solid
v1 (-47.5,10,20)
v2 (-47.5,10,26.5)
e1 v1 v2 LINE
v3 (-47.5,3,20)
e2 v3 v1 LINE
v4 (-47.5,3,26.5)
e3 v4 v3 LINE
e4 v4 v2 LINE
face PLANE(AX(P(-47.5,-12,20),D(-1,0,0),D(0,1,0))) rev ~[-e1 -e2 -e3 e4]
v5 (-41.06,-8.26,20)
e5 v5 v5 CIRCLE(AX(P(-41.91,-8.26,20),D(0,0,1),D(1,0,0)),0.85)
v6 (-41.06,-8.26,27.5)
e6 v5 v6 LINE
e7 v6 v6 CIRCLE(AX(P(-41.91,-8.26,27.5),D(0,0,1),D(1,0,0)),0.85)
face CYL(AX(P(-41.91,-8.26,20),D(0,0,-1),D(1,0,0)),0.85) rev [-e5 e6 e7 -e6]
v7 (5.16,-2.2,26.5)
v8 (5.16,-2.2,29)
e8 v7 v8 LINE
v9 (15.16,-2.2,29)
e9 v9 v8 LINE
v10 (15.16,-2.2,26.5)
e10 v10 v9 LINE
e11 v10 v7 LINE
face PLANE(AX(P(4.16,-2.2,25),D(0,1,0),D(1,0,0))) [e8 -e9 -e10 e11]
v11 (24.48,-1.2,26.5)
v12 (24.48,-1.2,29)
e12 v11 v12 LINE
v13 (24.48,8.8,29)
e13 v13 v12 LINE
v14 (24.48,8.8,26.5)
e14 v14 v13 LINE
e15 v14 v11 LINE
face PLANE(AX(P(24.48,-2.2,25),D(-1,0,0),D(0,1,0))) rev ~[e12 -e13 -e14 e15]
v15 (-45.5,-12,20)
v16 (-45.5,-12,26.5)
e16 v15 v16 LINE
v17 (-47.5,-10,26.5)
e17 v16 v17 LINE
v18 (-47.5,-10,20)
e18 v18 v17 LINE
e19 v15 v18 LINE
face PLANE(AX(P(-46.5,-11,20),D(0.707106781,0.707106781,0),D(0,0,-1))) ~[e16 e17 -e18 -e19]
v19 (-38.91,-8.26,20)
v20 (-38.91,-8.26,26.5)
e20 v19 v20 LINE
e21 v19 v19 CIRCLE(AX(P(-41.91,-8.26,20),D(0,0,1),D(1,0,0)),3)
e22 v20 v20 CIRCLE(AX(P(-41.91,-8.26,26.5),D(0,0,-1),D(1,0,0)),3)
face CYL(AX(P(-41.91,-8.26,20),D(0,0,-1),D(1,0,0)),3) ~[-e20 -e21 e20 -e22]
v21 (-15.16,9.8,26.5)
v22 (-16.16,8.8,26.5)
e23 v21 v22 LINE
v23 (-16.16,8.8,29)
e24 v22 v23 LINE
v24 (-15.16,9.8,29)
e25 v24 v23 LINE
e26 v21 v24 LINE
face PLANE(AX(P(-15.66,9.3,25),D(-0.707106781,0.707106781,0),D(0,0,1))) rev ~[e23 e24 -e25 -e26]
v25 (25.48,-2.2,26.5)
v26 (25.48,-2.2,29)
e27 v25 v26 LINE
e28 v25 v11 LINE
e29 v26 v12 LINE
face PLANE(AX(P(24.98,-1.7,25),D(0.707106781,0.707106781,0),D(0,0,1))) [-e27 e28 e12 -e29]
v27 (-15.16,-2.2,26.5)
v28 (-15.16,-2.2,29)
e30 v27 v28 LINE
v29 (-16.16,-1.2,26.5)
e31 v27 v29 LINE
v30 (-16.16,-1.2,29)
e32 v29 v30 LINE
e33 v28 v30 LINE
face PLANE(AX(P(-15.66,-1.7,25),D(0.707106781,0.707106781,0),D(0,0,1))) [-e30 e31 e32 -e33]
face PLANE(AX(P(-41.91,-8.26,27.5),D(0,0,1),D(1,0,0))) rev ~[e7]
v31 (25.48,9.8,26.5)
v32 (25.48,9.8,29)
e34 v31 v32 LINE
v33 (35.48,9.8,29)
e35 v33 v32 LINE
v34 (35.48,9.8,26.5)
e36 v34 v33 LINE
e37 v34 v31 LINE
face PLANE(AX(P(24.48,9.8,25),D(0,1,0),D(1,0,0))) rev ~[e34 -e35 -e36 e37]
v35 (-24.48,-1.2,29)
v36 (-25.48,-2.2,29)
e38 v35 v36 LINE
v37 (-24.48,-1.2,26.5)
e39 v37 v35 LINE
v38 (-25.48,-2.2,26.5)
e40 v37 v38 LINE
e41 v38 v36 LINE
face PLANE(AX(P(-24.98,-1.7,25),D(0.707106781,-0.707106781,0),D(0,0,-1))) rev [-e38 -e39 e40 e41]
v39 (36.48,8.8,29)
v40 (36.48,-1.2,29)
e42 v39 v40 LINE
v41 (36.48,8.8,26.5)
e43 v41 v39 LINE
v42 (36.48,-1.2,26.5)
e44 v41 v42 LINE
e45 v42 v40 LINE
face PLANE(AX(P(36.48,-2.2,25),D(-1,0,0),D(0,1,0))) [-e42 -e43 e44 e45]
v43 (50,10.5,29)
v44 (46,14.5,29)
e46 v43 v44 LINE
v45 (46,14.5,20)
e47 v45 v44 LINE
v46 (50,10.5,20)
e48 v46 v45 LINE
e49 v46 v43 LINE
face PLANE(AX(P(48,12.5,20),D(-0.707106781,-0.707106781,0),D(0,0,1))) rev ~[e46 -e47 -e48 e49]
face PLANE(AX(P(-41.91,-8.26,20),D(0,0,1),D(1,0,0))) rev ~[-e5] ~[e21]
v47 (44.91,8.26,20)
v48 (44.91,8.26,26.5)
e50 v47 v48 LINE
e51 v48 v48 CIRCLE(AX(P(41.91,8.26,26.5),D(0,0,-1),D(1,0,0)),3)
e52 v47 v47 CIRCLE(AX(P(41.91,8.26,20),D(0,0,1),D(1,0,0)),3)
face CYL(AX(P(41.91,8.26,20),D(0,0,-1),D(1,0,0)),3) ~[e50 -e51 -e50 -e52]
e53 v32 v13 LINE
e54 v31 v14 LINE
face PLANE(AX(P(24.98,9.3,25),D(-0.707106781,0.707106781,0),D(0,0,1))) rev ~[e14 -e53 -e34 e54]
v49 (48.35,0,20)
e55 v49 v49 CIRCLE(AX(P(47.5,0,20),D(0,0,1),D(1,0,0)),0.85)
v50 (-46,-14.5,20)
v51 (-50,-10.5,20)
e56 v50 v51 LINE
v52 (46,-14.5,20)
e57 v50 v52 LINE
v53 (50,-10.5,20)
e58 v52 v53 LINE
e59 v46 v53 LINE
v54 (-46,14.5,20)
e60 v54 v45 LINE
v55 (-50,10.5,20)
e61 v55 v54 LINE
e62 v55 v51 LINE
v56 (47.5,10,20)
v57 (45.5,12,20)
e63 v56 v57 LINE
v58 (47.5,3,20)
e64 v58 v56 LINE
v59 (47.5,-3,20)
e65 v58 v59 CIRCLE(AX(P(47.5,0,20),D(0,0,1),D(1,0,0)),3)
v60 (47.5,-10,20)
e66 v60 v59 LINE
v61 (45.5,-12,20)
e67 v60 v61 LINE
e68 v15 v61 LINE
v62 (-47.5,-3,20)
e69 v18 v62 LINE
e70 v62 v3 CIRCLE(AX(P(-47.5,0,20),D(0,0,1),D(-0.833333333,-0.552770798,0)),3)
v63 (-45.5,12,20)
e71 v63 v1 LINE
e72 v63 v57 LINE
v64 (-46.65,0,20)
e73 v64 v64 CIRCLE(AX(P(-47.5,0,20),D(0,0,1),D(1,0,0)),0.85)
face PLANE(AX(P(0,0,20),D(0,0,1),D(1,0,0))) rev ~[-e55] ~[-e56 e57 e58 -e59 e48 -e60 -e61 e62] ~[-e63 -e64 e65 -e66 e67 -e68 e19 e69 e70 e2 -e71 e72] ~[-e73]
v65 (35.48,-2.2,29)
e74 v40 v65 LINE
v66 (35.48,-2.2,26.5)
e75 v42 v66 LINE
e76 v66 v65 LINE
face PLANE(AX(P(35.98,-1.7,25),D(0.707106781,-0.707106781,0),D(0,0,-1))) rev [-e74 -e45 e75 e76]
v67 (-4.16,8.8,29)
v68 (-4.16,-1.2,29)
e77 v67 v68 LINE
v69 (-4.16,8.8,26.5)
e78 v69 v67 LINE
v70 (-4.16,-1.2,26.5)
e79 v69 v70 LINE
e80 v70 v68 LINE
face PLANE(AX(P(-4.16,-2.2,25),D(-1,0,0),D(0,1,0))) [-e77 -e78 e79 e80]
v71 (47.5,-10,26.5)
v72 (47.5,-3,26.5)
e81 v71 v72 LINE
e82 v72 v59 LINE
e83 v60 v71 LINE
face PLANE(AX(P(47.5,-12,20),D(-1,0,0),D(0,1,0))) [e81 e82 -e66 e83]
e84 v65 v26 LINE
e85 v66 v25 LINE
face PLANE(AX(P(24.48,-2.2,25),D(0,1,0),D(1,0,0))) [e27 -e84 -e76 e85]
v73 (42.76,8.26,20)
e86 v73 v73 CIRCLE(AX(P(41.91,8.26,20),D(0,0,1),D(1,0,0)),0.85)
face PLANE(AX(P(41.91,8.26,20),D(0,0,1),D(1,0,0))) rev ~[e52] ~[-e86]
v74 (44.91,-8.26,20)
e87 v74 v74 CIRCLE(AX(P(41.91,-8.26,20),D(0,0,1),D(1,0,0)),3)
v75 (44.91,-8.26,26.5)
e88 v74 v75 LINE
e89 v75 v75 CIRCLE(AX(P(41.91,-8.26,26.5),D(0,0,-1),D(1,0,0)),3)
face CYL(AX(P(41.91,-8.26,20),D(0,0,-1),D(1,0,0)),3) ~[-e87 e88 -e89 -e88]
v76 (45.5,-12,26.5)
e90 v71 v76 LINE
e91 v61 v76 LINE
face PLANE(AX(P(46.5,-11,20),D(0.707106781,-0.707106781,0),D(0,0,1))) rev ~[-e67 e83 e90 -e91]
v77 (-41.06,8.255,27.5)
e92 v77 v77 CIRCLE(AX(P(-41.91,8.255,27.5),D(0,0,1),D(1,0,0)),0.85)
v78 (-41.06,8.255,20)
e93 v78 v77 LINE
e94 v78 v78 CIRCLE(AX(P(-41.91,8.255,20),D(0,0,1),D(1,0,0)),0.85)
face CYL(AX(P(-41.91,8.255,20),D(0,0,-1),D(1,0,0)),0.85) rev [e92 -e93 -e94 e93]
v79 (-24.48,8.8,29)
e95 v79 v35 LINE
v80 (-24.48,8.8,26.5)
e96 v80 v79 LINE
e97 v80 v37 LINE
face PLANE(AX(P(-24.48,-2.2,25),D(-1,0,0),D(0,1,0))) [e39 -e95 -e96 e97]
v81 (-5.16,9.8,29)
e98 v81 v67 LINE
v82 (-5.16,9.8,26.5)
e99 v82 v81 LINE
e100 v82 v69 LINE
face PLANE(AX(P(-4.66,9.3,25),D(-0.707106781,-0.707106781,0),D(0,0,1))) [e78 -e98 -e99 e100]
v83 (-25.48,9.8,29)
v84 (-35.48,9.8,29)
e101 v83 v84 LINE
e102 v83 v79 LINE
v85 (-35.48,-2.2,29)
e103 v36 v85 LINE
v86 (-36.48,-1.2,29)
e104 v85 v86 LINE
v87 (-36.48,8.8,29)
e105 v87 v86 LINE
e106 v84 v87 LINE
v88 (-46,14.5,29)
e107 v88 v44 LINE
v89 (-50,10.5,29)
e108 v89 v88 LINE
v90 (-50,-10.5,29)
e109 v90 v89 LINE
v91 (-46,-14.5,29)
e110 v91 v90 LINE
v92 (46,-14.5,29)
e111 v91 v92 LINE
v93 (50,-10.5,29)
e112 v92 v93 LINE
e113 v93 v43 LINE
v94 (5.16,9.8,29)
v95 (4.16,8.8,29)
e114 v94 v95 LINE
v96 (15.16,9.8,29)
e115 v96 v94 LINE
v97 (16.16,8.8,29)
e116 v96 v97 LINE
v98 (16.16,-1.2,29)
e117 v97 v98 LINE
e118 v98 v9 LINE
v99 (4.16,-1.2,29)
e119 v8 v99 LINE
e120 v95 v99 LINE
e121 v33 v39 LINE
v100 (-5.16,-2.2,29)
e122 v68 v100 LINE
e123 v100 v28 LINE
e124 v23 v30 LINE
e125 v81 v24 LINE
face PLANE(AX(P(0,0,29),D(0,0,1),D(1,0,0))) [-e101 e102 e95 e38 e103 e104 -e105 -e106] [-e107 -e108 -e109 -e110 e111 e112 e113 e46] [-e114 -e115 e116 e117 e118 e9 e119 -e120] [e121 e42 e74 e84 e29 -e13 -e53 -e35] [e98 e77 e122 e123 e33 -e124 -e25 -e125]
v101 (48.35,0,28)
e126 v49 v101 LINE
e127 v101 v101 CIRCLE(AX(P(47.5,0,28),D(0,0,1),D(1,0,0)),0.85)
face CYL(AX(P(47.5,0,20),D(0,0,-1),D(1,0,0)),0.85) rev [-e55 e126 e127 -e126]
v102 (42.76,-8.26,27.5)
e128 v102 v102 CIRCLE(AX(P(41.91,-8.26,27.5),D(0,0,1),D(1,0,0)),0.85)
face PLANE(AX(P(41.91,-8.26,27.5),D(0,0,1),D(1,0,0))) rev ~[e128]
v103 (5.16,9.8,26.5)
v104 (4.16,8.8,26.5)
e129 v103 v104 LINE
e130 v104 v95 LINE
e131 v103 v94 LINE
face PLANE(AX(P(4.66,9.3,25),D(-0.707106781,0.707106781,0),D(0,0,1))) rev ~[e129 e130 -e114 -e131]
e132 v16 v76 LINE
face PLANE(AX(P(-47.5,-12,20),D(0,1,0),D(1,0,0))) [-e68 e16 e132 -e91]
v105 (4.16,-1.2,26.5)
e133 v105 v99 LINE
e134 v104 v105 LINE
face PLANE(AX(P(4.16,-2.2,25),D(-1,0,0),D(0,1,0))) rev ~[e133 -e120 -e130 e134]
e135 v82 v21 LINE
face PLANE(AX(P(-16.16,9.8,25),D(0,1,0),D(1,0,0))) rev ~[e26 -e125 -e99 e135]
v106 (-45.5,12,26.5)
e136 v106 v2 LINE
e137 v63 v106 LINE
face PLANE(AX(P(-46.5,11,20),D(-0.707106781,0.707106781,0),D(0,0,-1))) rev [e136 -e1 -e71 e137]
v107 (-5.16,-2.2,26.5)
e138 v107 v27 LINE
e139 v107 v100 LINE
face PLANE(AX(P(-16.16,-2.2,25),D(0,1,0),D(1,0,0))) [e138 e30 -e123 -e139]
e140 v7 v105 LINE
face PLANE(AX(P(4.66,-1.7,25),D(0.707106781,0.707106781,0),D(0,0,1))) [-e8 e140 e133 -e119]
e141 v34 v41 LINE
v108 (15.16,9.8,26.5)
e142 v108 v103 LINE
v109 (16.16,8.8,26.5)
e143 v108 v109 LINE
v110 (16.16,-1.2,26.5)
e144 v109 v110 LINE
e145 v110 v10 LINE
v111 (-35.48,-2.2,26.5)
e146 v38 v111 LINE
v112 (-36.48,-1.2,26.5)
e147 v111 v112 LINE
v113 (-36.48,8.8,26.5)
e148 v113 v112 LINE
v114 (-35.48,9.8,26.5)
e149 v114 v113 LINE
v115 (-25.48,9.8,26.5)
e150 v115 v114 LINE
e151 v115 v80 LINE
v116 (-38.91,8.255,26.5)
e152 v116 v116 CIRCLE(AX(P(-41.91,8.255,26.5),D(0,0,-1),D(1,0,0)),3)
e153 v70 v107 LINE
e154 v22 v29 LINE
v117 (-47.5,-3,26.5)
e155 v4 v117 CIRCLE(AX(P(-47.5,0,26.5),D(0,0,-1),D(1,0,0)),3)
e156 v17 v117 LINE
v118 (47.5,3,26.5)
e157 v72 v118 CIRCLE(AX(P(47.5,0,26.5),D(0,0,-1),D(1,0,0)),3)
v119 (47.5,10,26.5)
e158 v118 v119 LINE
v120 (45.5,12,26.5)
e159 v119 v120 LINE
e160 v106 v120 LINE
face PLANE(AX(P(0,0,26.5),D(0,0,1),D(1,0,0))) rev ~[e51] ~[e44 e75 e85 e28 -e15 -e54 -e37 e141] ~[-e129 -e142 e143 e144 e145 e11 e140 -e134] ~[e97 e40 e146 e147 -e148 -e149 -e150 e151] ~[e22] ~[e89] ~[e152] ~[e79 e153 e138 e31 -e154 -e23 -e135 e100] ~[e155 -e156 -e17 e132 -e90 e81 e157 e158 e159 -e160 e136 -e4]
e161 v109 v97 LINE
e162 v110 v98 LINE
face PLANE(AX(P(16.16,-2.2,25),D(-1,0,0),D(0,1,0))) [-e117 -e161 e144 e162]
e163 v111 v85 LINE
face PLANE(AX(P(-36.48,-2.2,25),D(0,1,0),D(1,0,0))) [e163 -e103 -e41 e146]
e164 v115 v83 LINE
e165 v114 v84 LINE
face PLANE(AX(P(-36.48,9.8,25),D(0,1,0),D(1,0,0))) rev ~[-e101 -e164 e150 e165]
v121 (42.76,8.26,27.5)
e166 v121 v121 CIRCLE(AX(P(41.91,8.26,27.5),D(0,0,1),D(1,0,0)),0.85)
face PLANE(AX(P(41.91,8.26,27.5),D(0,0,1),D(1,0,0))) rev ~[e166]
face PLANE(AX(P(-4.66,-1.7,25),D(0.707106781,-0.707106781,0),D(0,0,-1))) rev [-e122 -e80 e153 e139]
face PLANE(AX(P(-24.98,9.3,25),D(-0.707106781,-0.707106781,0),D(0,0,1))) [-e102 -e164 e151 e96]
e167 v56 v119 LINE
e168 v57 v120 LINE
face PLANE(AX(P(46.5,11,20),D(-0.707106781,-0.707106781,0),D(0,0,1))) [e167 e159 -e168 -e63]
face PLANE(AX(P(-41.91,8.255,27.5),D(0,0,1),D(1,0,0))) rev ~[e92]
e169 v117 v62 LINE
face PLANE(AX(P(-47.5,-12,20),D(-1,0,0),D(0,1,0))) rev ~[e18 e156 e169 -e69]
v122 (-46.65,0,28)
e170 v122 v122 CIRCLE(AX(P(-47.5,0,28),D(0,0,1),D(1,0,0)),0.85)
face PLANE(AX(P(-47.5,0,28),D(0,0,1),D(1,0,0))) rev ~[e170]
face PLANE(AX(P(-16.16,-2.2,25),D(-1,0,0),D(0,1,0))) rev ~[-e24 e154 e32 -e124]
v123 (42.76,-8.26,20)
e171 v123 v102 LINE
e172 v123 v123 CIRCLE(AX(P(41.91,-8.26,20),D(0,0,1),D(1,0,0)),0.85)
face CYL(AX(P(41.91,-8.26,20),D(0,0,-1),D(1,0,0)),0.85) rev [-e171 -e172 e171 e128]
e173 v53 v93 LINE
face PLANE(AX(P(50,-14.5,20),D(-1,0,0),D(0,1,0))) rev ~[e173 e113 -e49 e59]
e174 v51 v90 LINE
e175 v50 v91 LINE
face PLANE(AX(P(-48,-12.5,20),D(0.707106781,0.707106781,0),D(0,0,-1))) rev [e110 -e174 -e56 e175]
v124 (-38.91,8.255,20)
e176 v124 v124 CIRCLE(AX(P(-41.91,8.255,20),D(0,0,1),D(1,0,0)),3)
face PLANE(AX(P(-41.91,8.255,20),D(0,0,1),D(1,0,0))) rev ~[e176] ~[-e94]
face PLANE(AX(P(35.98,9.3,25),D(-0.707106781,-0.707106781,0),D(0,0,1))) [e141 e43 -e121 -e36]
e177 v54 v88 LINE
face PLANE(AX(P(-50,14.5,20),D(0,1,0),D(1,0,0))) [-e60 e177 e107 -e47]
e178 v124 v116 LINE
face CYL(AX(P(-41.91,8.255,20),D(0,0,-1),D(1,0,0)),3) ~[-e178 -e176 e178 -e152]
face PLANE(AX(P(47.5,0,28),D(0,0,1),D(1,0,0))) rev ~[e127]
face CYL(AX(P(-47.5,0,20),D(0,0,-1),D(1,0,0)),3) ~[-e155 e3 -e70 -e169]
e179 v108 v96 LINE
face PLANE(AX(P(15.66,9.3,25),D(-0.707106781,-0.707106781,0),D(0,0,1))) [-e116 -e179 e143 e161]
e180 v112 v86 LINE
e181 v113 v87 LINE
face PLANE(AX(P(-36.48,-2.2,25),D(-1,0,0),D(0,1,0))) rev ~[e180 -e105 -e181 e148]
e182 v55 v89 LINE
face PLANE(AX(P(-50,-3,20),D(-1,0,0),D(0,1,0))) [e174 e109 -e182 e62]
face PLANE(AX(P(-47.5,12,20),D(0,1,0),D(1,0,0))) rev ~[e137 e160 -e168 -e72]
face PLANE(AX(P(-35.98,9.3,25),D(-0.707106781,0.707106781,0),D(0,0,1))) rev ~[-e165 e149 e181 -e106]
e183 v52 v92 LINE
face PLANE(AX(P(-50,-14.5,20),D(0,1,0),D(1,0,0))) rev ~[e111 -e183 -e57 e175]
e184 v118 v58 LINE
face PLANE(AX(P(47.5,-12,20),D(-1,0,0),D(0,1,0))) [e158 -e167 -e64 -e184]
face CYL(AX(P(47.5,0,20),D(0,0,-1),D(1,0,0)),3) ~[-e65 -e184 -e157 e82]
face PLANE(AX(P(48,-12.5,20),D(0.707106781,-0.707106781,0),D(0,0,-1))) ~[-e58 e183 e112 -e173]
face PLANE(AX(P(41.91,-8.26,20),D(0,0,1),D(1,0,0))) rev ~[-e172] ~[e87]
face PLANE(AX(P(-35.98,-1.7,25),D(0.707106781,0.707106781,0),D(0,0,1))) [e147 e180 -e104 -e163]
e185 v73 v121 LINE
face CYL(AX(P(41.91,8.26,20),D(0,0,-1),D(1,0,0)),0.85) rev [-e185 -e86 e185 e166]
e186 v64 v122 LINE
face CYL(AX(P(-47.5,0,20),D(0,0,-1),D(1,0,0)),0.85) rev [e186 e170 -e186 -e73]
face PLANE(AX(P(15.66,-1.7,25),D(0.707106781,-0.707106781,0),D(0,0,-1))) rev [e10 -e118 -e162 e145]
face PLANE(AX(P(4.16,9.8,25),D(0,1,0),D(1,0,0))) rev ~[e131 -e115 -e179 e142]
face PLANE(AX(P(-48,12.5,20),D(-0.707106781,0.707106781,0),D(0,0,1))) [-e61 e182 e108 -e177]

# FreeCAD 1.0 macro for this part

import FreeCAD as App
import Part
import Sketcher


def edges_at(feature, points):
    """Names of the edges that pass closest to the given points."""
    edges = feature.Shape.Edges
    near = lambda p: min(range(len(edges)), key=lambda i: edges[i].distToShape(Part.Vertex(*p))[0])
    return sorted({f"Edge{near(p) + 1}" for p in points})

doc = App.newDocument("Part")
body = doc.addObject("PartDesign::Body", "Body")

# Sketch on XY plane
sketch1 = doc.addObject("Sketcher::SketchObject", "Sketch")
body.addObject(sketch1)
sketch1.AttachmentSupport = (doc.XY_Plane, [""])
sketch1.MapMode = "FlatFace"
sketch1.AttachmentOffset = App.Placement(App.Vector(0, 0, 20), App.Rotation())
sketch1.addGeometry(Part.Circle(App.Vector(-47.5, 0, 0), App.Vector(0, 0, 1), 0.85), False)
sketch1.addConstraint(Sketcher.Constraint("PointOnObject", 0, 3, -1))
sketch1.addConstraint(Sketcher.Constraint("Diameter", 0, 1.7))
sketch1.addConstraint(Sketcher.Constraint("DistanceX", 0, 3, -1, 1, 47.5))
pad1 = doc.addObject("PartDesign::Pad", "Pad")
body.addObject(pad1)
pad1.Profile = sketch1
pad1.Length = 8
body2 = doc.addObject("PartDesign::Body", "Body001")
body2.AllowCompound = True

# Sketch on XY plane
sketch2 = doc.addObject("Sketcher::SketchObject", "Sketch001")
body2.addObject(sketch2)
sketch2.AttachmentSupport = (doc.getObject("XY_Plane001"), [""])
sketch2.MapMode = "FlatFace"
sketch2.AttachmentOffset = App.Placement(App.Vector(0, 0, 20), App.Rotation())
sketch2.addGeometry(Part.Circle(App.Vector(47.5, 0, 0), App.Vector(0, 0, 1), 0.85), False)
sketch2.addConstraint(Sketcher.Constraint("PointOnObject", 0, 3, -1))
sketch2.addConstraint(Sketcher.Constraint("Diameter", 0, 1.7))
sketch2.addConstraint(Sketcher.Constraint("DistanceX", -1, 1, 0, 3, 47.5))
pad2 = doc.addObject("PartDesign::Pad", "Pad001")
body2.addObject(pad2)
pad2.Profile = sketch2
pad2.Length = 8
doc.recompute()

boolean = doc.addObject("PartDesign::Boolean", "Boolean")
body2.addObject(boolean)
boolean.Type = "Fuse"
boolean.addObjects([body])
body3 = doc.addObject("PartDesign::Body", "Body002")

# Sketch on XY plane
sketch3 = doc.addObject("Sketcher::SketchObject", "Sketch002")
body3.addObject(sketch3)
sketch3.AttachmentSupport = (doc.getObject("XY_Plane002"), [""])
sketch3.MapMode = "FlatFace"
sketch3.AttachmentOffset = App.Placement(App.Vector(0, 0, 20), App.Rotation())
sketch3.addGeometry(Part.LineSegment(App.Vector(-60, 7, 0), App.Vector(-60, -3, 0)), False)
sketch3.addGeometry(Part.LineSegment(App.Vector(-60, -3, 0), App.Vector(-50, -3, 0)), False)
sketch3.addGeometry(Part.LineSegment(App.Vector(-50, -3, 0), App.Vector(-50, 7, 0)), False)
sketch3.addGeometry(Part.LineSegment(App.Vector(-50, 7, 0), App.Vector(-60, 7, 0)), False)
sketch3.addConstraint(Sketcher.Constraint("Coincident", 0, 2, 1, 1))
sketch3.addConstraint(Sketcher.Constraint("Coincident", 1, 2, 2, 1))
sketch3.addConstraint(Sketcher.Constraint("Coincident", 2, 2, 3, 1))
sketch3.addConstraint(Sketcher.Constraint("Coincident", 3, 2, 0, 1))
sketch3.addConstraint(Sketcher.Constraint("Vertical", 0))
sketch3.addConstraint(Sketcher.Constraint("Horizontal", 1))
sketch3.addConstraint(Sketcher.Constraint("Vertical", 2))
sketch3.addConstraint(Sketcher.Constraint("Horizontal", 3))
sketch3.addConstraint(Sketcher.Constraint("Equal", 3, 0))
sketch3.addConstraint(Sketcher.Constraint("DistanceX", 1, 1, 1, 2, 10.0))
sketch3.addConstraint(Sketcher.Constraint("DistanceX", 0, 2, -1, 1, 60.0))
sketch3.addConstraint(Sketcher.Constraint("DistanceY", 0, 2, -1, 1, 3.0))
pad3 = doc.addObject("PartDesign::Pad", "Pad002")
body3.addObject(pad3)
pad3.Profile = sketch3
pad3.Length = 10
body4 = doc.addObject("PartDesign::Body", "Body003")

# Sketch on XY plane
sketch4 = doc.addObject("Sketcher::SketchObject", "Sketch003")
body4.addObject(sketch4)
sketch4.AttachmentSupport = (doc.getObject("XY_Plane003"), [""])
sketch4.MapMode = "FlatFace"
sketch4.AttachmentOffset = App.Placement(App.Vector(0, 0, 20), App.Rotation())
sketch4.addGeometry(Part.Circle(App.Vector(-47.5, 0, 0), App.Vector(0, 0, 1), 3), False)
sketch4.addConstraint(Sketcher.Constraint("PointOnObject", 0, 3, -1))
sketch4.addConstraint(Sketcher.Constraint("Diameter", 0, 6.0))
sketch4.addConstraint(Sketcher.Constraint("DistanceX", 0, 3, -1, 1, 47.5))
pad4 = doc.addObject("PartDesign::Pad", "Pad003")
body4.addObject(pad4)
pad4.Profile = sketch4
pad4.Length = 8
doc.recompute()

boolean2 = doc.addObject("PartDesign::Boolean", "Boolean001")
body4.addObject(boolean2)
boolean2.Type = "Cut"
boolean2.addObjects([body3])
body5 = doc.addObject("PartDesign::Body", "Body004")

# Sketch on XY plane
sketch5 = doc.addObject("Sketcher::SketchObject", "Sketch004")
body5.addObject(sketch5)
sketch5.AttachmentSupport = (doc.getObject("XY_Plane004"), [""])
sketch5.MapMode = "FlatFace"
sketch5.AttachmentOffset = App.Placement(App.Vector(0, 0, 20), App.Rotation())
sketch5.addGeometry(Part.LineSegment(App.Vector(50, 7, 0), App.Vector(50, -3, 0)), False)
sketch5.addGeometry(Part.LineSegment(App.Vector(50, -3, 0), App.Vector(60, -3, 0)), False)
sketch5.addGeometry(Part.LineSegment(App.Vector(60, -3, 0), App.Vector(60, 7, 0)), False)
sketch5.addGeometry(Part.LineSegment(App.Vector(60, 7, 0), App.Vector(50, 7, 0)), False)
sketch5.addConstraint(Sketcher.Constraint("Coincident", 0, 2, 1, 1))
sketch5.addConstraint(Sketcher.Constraint("Coincident", 1, 2, 2, 1))
sketch5.addConstraint(Sketcher.Constraint("Coincident", 2, 2, 3, 1))
sketch5.addConstraint(Sketcher.Constraint("Coincident", 3, 2, 0, 1))
sketch5.addConstraint(Sketcher.Constraint("Vertical", 0))
sketch5.addConstraint(Sketcher.Constraint("Horizontal", 1))
sketch5.addConstraint(Sketcher.Constraint("Vertical", 2))
sketch5.addConstraint(Sketcher.Constraint("Horizontal", 3))
sketch5.addConstraint(Sketcher.Constraint("Equal", 3, 0))
sketch5.addConstraint(Sketcher.Constraint("DistanceX", 1, 1, 1, 2, 10.0))
sketch5.addConstraint(Sketcher.Constraint("DistanceX", -1, 1, 0, 2, 50.0))
sketch5.addConstraint(Sketcher.Constraint("DistanceY", 0, 2, -1, 1, 3.0))
pad5 = doc.addObject("PartDesign::Pad", "Pad004")
body5.addObject(pad5)
pad5.Profile = sketch5
pad5.Length = 10
body6 = doc.addObject("PartDesign::Body", "Body005")
body6.AllowCompound = True

# Sketch on XY plane
sketch6 = doc.addObject("Sketcher::SketchObject", "Sketch005")
body6.addObject(sketch6)
sketch6.AttachmentSupport = (doc.getObject("XY_Plane005"), [""])
sketch6.MapMode = "FlatFace"
sketch6.AttachmentOffset = App.Placement(App.Vector(0, 0, 20), App.Rotation())
sketch6.addGeometry(Part.Circle(App.Vector(47.5, 0, 0), App.Vector(0, 0, 1), 3), False)
sketch6.addConstraint(Sketcher.Constraint("PointOnObject", 0, 3, -1))
sketch6.addConstraint(Sketcher.Constraint("Diameter", 0, 6.0))
sketch6.addConstraint(Sketcher.Constraint("DistanceX", -1, 1, 0, 3, 47.5))
pad6 = doc.addObject("PartDesign::Pad", "Pad005")
body6.addObject(pad6)
pad6.Profile = sketch6
pad6.Length = 8
doc.recompute()

boolean3 = doc.addObject("PartDesign::Boolean", "Boolean002")
body6.addObject(boolean3)
boolean3.Type = "Cut"
boolean3.addObjects([body5])
doc.recompute()

boolean4 = doc.addObject("PartDesign::Boolean", "Boolean003")
body6.addObject(boolean4)
boolean4.Type = "Fuse"
boolean4.addObjects([body4])
body7 = doc.addObject("PartDesign::Body", "Body006")

# Sketch on XY plane
sketch7 = doc.addObject("Sketcher::SketchObject", "Sketch006")
body7.addObject(sketch7)
sketch7.AttachmentSupport = (doc.getObject("XY_Plane006"), [""])
sketch7.MapMode = "FlatFace"
sketch7.addGeometry(Part.LineSegment(App.Vector(24.48, 6, 0), App.Vector(24.48, -6, 0)), False)
sketch7.addGeometry(Part.LineSegment(App.Vector(24.48, -6, 0), App.Vector(36.48, -6, 0)), False)
sketch7.addGeometry(Part.LineSegment(App.Vector(36.48, -6, 0), App.Vector(36.48, 6, 0)), False)
sketch7.addGeometry(Part.LineSegment(App.Vector(36.48, 6, 0), App.Vector(24.48, 6, 0)), False)
sketch7.addConstraint(Sketcher.Constraint("Coincident", 0, 2, 1, 1))
sketch7.addConstraint(Sketcher.Constraint("Coincident", 1, 2, 2, 1))
sketch7.addConstraint(Sketcher.Constraint("Coincident", 2, 2, 3, 1))
sketch7.addConstraint(Sketcher.Constraint("Coincident", 3, 2, 0, 1))
sketch7.addConstraint(Sketcher.Constraint("Vertical", 0))
sketch7.addConstraint(Sketcher.Constraint("Horizontal", 1))
sketch7.addConstraint(Sketcher.Constraint("Vertical", 2))
sketch7.addConstraint(Sketcher.Constraint("Horizontal", 3))
sketch7.addConstraint(Sketcher.Constraint("Equal", 3, 0))
sketch7.addConstraint(Sketcher.Constraint("DistanceX", 1, 1, 1, 2, 12.0))
sketch7.addConstraint(Sketcher.Constraint("DistanceY", 0, 2, -1, 1, 6.0))
sketch7.addConstraint(Sketcher.Constraint("DistanceX", -1, 1, 0, 2, 24.48))
pad7 = doc.addObject("PartDesign::Pad", "Pad006")
body7.addObject(pad7)
pad7.Profile = sketch7
pad7.Length = 10
body8 = doc.addObject("PartDesign::Body", "Body007")

# Sketch on XY plane
sketch8 = doc.addObject("Sketcher::SketchObject", "Sketch007")
body8.addObject(sketch8)
sketch8.AttachmentSupport = (doc.getObject("XY_Plane007"), [""])
sketch8.MapMode = "FlatFace"
sketch8.addGeometry(Part.LineSegment(App.Vector(4.16, 6, 0), App.Vector(4.16, -6, 0)), False)
sketch8.addGeometry(Part.LineSegment(App.Vector(4.16, -6, 0), App.Vector(16.16, -6, 0)), False)
sketch8.addGeometry(Part.LineSegment(App.Vector(16.16, -6, 0), App.Vector(16.16, 6, 0)), False)
sketch8.addGeometry(Part.LineSegment(App.Vector(16.16, 6, 0), App.Vector(4.16, 6, 0)), False)
sketch8.addConstraint(Sketcher.Constraint("Coincident", 0, 2, 1, 1))
sketch8.addConstraint(Sketcher.Constraint("Coincident", 1, 2, 2, 1))
sketch8.addConstraint(Sketcher.Constraint("Coincident", 2, 2, 3, 1))
sketch8.addConstraint(Sketcher.Constraint("Coincident", 3, 2, 0, 1))
sketch8.addConstraint(Sketcher.Constraint("Vertical", 0))
sketch8.addConstraint(Sketcher.Constraint("Horizontal", 1))
sketch8.addConstraint(Sketcher.Constraint("Vertical", 2))
sketch8.addConstraint(Sketcher.Constraint("Horizontal", 3))
sketch8.addConstraint(Sketcher.Constraint("Equal", 3, 0))
sketch8.addConstraint(Sketcher.Constraint("DistanceX", 1, 1, 1, 2, 12.0))
sketch8.addConstraint(Sketcher.Constraint("DistanceY", 0, 2, -1, 1, 6.0))
sketch8.addConstraint(Sketcher.Constraint("DistanceX", -1, 1, 0, 2, 4.16))
pad8 = doc.addObject("PartDesign::Pad", "Pad007")
body8.addObject(pad8)
pad8.Profile = sketch8
pad8.Length = 10
body9 = doc.addObject("PartDesign::Body", "Body008")

# Sketch on XY plane
sketch9 = doc.addObject("Sketcher::SketchObject", "Sketch008")
body9.addObject(sketch9)
sketch9.AttachmentSupport = (doc.getObject("XY_Plane008"), [""])
sketch9.MapMode = "FlatFace"
sketch9.addGeometry(Part.LineSegment(App.Vector(-16.16, 6, 0), App.Vector(-16.16, -6, 0)), False)
sketch9.addGeometry(Part.LineSegment(App.Vector(-16.16, -6, 0), App.Vector(-4.16, -6, 0)), False)
sketch9.addGeometry(Part.LineSegment(App.Vector(-4.16, -6, 0), App.Vector(-4.16, 6, 0)), False)
sketch9.addGeometry(Part.LineSegment(App.Vector(-4.16, 6, 0), App.Vector(-16.16, 6, 0)), False)
sketch9.addConstraint(Sketcher.Constraint("Coincident", 0, 2, 1, 1))
sketch9.addConstraint(Sketcher.Constraint("Coincident", 1, 2, 2, 1))
sketch9.addConstraint(Sketcher.Constraint("Coincident", 2, 2, 3, 1))
sketch9.addConstraint(Sketcher.Constraint("Coincident", 3, 2, 0, 1))
sketch9.addConstraint(Sketcher.Constraint("Vertical", 0))
sketch9.addConstraint(Sketcher.Constraint("Horizontal", 1))
sketch9.addConstraint(Sketcher.Constraint("Vertical", 2))
sketch9.addConstraint(Sketcher.Constraint("Horizontal", 3))
sketch9.addConstraint(Sketcher.Constraint("Equal", 3, 0))
sketch9.addConstraint(Sketcher.Constraint("DistanceX", 1, 1, 1, 2, 12.0))
sketch9.addConstraint(Sketcher.Constraint("DistanceY", 0, 2, -1, 1, 6.0))
sketch9.addConstraint(Sketcher.Constraint("DistanceX", 0, 2, -1, 1, 16.16))
pad9 = doc.addObject("PartDesign::Pad", "Pad008")
body9.addObject(pad9)
pad9.Profile = sketch9
pad9.Length = 10
body10 = doc.addObject("PartDesign::Body", "Body009")
body10.AllowCompound = True

# Sketch on XY plane
sketch10 = doc.addObject("Sketcher::SketchObject", "Sketch009")
body10.addObject(sketch10)
sketch10.AttachmentSupport = (doc.getObject("XY_Plane009"), [""])
sketch10.MapMode = "FlatFace"
sketch10.addGeometry(Part.LineSegment(App.Vector(-36.48, 6, 0), App.Vector(-36.48, -6, 0)), False)
sketch10.addGeometry(Part.LineSegment(App.Vector(-36.48, -6, 0), App.Vector(-24.48, -6, 0)), False)
sketch10.addGeometry(Part.LineSegment(App.Vector(-24.48, -6, 0), App.Vector(-24.48, 6, 0)), False)
sketch10.addGeometry(Part.LineSegment(App.Vector(-24.48, 6, 0), App.Vector(-36.48, 6, 0)), False)
sketch10.addConstraint(Sketcher.Constraint("Coincident", 0, 2, 1, 1))
sketch10.addConstraint(Sketcher.Constraint("Coincident", 1, 2, 2, 1))
sketch10.addConstraint(Sketcher.Constraint("Coincident", 2, 2, 3, 1))
sketch10.addConstraint(Sketcher.Constraint("Coincident", 3, 2, 0, 1))
sketch10.addConstraint(Sketcher.Constraint("Vertical", 0))
sketch10.addConstraint(Sketcher.Constraint("Horizontal", 1))
sketch10.addConstraint(Sketcher.Constraint("Vertical", 2))
sketch10.addConstraint(Sketcher.Constraint("Horizontal", 3))
sketch10.addConstraint(Sketcher.Constraint("Equal", 3, 0))
sketch10.addConstraint(Sketcher.Constraint("DistanceX", 1, 1, 1, 2, 12.0))
sketch10.addConstraint(Sketcher.Constraint("DistanceY", 0, 2, -1, 1, 6.0))
sketch10.addConstraint(Sketcher.Constraint("DistanceX", 0, 2, -1, 1, 36.48))
pad10 = doc.addObject("PartDesign::Pad", "Pad009")
body10.addObject(pad10)
pad10.Profile = sketch10
pad10.Length = 10
doc.recompute()

boolean5 = doc.addObject("PartDesign::Boolean", "Boolean004")
body10.addObject(boolean5)
boolean5.Type = "Fuse"
boolean5.addObjects([body7])
doc.recompute()

boolean6 = doc.addObject("PartDesign::Boolean", "Boolean005")
body10.addObject(boolean6)
boolean6.Type = "Fuse"
boolean6.addObjects([body8])
doc.recompute()

boolean7 = doc.addObject("PartDesign::Boolean", "Boolean006")
body10.addObject(boolean7)
boolean7.Type = "Fuse"
boolean7.addObjects([body9])
body11 = doc.addObject("PartDesign::Body", "Body010")
body11.AllowCompound = True
doc.recompute()

body10.Placement = App.Placement(App.Vector(0, 0, 25), App.Rotation(App.Vector(0, 0, 1), 0))
boolean8 = doc.addObject("PartDesign::Boolean", "Boolean007")
body11.addObject(boolean8)
boolean8.Type = "Fuse"
boolean8.addObjects([body10])
doc.recompute()

chamfer = doc.addObject("PartDesign::Chamfer", "Chamfer")
body11.addObject(chamfer)
chamfer.Base = (boolean8, edges_at(boolean8, [
    (-36.48, -6, 30),
    (-36.48, 6, 30),
    (-24.48, -6, 30),
    (-24.48, 6, 30),
    (24.48, -6, 30),
    (24.48, 6, 30),
    (36.48, -6, 30),
    (36.48, 6, 30),
    (4.16, -6, 30),
    (4.16, 6, 30),
    (16.16, -6, 30),
    (16.16, 6, 30),
    (-16.16, -6, 30),
    (-16.16, 6, 30),
    (-4.16, -6, 30),
    (-4.16, 6, 30),
]))
chamfer.Size = 1
body12 = doc.addObject("PartDesign::Body", "Body011")
body12.AllowCompound = True
doc.recompute()

body11.Placement = App.Placement(App.Vector(0, 3.8, 0), App.Rotation(App.Vector(0, 0, 1), 0))
boolean9 = doc.addObject("PartDesign::Boolean", "Boolean008")
body12.addObject(boolean9)
boolean9.Type = "Fuse"
boolean9.addObjects([body11])
body13 = doc.addObject("PartDesign::Body", "Body012")

# Sketch on XY plane
sketch11 = doc.addObject("Sketcher::SketchObject", "Sketch010")
body13.addObject(sketch11)
sketch11.AttachmentSupport = (doc.getObject("XY_Plane012"), [""])
sketch11.MapMode = "FlatFace"
sketch11.addGeometry(Part.Circle(App.Vector(-41.91, -8.26, 0), App.Vector(0, 0, 1), 0.85), False)
sketch11.addConstraint(Sketcher.Constraint("Diameter", 0, 1.7))
sketch11.addConstraint(Sketcher.Constraint("DistanceX", 0, 3, -1, 1, 41.91))
sketch11.addConstraint(Sketcher.Constraint("DistanceY", 0, 3, -1, 1, 8.26))
pad11 = doc.addObject("PartDesign::Pad", "Pad010")
body13.addObject(pad11)
pad11.Profile = sketch11
pad11.Length = 7.5
body14 = doc.addObject("PartDesign::Body", "Body013")

# Sketch on XY plane
sketch12 = doc.addObject("Sketcher::SketchObject", "Sketch011")
body14.addObject(sketch12)
sketch12.AttachmentSupport = (doc.getObject("XY_Plane013"), [""])
sketch12.MapMode = "FlatFace"
sketch12.addGeometry(Part.Circle(App.Vector(-41.91, 8.255, 0), App.Vector(0, 0, 1), 0.85), False)
sketch12.addConstraint(Sketcher.Constraint("Diameter", 0, 1.7))
sketch12.addConstraint(Sketcher.Constraint("DistanceX", 0, 3, -1, 1, 41.91))
sketch12.addConstraint(Sketcher.Constraint("DistanceY", -1, 1, 0, 3, 8.255))
pad12 = doc.addObject("PartDesign::Pad", "Pad011")
body14.addObject(pad12)
pad12.Profile = sketch12
pad12.Length = 7.5
body15 = doc.addObject("PartDesign::Body", "Body014")

# Sketch on XY plane
sketch13 = doc.addObject("Sketcher::SketchObject", "Sketch012")
body15.addObject(sketch13)
sketch13.AttachmentSupport = (doc.getObject("XY_Plane014"), [""])
sketch13.MapMode = "FlatFace"
sketch13.addGeometry(Part.Circle(App.Vector(41.91, -8.26, 0), App.Vector(0, 0, 1), 0.85), False)
sketch13.addConstraint(Sketcher.Constraint("Diameter", 0, 1.7))
sketch13.addConstraint(Sketcher.Constraint("DistanceX", -1, 1, 0, 3, 41.91))
sketch13.addConstraint(Sketcher.Constraint("DistanceY", 0, 3, -1, 1, 8.26))
pad13 = doc.addObject("PartDesign::Pad", "Pad012")
body15.addObject(pad13)
pad13.Profile = sketch13
pad13.Length = 7.5
body16 = doc.addObject("PartDesign::Body", "Body015")
body16.AllowCompound = True

# Sketch on XY plane
sketch14 = doc.addObject("Sketcher::SketchObject", "Sketch013")
body16.addObject(sketch14)
sketch14.AttachmentSupport = (doc.getObject("XY_Plane015"), [""])
sketch14.MapMode = "FlatFace"
sketch14.addGeometry(Part.Circle(App.Vector(41.91, 8.26, 0), App.Vector(0, 0, 1), 0.85), False)
sketch14.addConstraint(Sketcher.Constraint("Diameter", 0, 1.7))
sketch14.addConstraint(Sketcher.Constraint("DistanceX", -1, 1, 0, 3, 41.91))
sketch14.addConstraint(Sketcher.Constraint("DistanceY", -1, 1, 0, 3, 8.26))
pad14 = doc.addObject("PartDesign::Pad", "Pad013")
body16.addObject(pad14)
pad14.Profile = sketch14
pad14.Length = 7.5
doc.recompute()

boolean10 = doc.addObject("PartDesign::Boolean", "Boolean009")
body16.addObject(boolean10)
boolean10.Type = "Fuse"
boolean10.addObjects([body13])
doc.recompute()

boolean11 = doc.addObject("PartDesign::Boolean", "Boolean010")
body16.addObject(boolean11)
boolean11.Type = "Fuse"
boolean11.addObjects([body14])
doc.recompute()

boolean12 = doc.addObject("PartDesign::Boolean", "Boolean011")
body16.addObject(boolean12)
boolean12.Type = "Fuse"
boolean12.addObjects([body15])
body17 = doc.addObject("PartDesign::Body", "Body016")
body17.AllowCompound = True
doc.recompute()

body16.Placement = App.Placement(App.Vector(0, 0, 20), App.Rotation(App.Vector(0, 0, 1), 0))
boolean13 = doc.addObject("PartDesign::Boolean", "Boolean012")
body17.addObject(boolean13)
boolean13.Type = "Fuse"
boolean13.addObjects([body16])
body18 = doc.addObject("PartDesign::Body", "Body017")

# Sketch on XY plane
sketch15 = doc.addObject("Sketcher::SketchObject", "Sketch014")
body18.addObject(sketch15)
sketch15.AttachmentSupport = (doc.getObject("XY_Plane017"), [""])
sketch15.MapMode = "FlatFace"
sketch15.AttachmentOffset = App.Placement(App.Vector(0, 0, 20), App.Rotation())
sketch15.addGeometry(Part.LineSegment(App.Vector(-47.5, 12, 0), App.Vector(-47.5, -12, 0)), False)
sketch15.addGeometry(Part.LineSegment(App.Vector(-47.5, -12, 0), App.Vector(47.5, -12, 0)), False)
sketch15.addGeometry(Part.LineSegment(App.Vector(47.5, -12, 0), App.Vector(47.5, 12, 0)), False)
sketch15.addGeometry(Part.LineSegment(App.Vector(47.5, 12, 0), App.Vector(-47.5, 12, 0)), False)
sketch15.addConstraint(Sketcher.Constraint("Coincident", 0, 2, 1, 1))
sketch15.addConstraint(Sketcher.Constraint("Coincident", 1, 2, 2, 1))
sketch15.addConstraint(Sketcher.Constraint("Coincident", 2, 2, 3, 1))
sketch15.addConstraint(Sketcher.Constraint("Coincident", 3, 2, 0, 1))
sketch15.addConstraint(Sketcher.Constraint("Vertical", 0))
sketch15.addConstraint(Sketcher.Constraint("Horizontal", 1))
sketch15.addConstraint(Sketcher.Constraint("Vertical", 2))
sketch15.addConstraint(Sketcher.Constraint("Horizontal", 3))
sketch15.addConstraint(Sketcher.Constraint("Symmetric", 0, 2, 2, 2, -1, 1))
sketch15.addConstraint(Sketcher.Constraint("DistanceX", 1, 1, 1, 2, 95.0))
sketch15.addConstraint(Sketcher.Constraint("DistanceY", 0, 2, 0, 1, 24.0))
pad15 = doc.addObject("PartDesign::Pad", "Pad014")
body18.addObject(pad15)
pad15.Profile = sketch15
pad15.Length = 6.5
body19 = doc.addObject("PartDesign::Body", "Body018")

# Sketch on XY plane
sketch16 = doc.addObject("Sketcher::SketchObject", "Sketch015")
body19.addObject(sketch16)
sketch16.AttachmentSupport = (doc.getObject("XY_Plane018"), [""])
sketch16.MapMode = "FlatFace"
sketch16.AttachmentOffset = App.Placement(App.Vector(0, 0, 20), App.Rotation())
sketch16.addGeometry(Part.LineSegment(App.Vector(-50, 14.5, 0), App.Vector(-50, -14.5, 0)), False)
sketch16.addGeometry(Part.LineSegment(App.Vector(-50, -14.5, 0), App.Vector(50, -14.5, 0)), False)
sketch16.addGeometry(Part.LineSegment(App.Vector(50, -14.5, 0), App.Vector(50, 14.5, 0)), False)
sketch16.addGeometry(Part.LineSegment(App.Vector(50, 14.5, 0), App.Vector(-50, 14.5, 0)), False)
sketch16.addConstraint(Sketcher.Constraint("Coincident", 0, 2, 1, 1))
sketch16.addConstraint(Sketcher.Constraint("Coincident", 1, 2, 2, 1))
sketch16.addConstraint(Sketcher.Constraint("Coincident", 2, 2, 3, 1))
sketch16.addConstraint(Sketcher.Constraint("Coincident", 3, 2, 0, 1))
sketch16.addConstraint(Sketcher.Constraint("Vertical", 0))
sketch16.addConstraint(Sketcher.Constraint("Horizontal", 1))
sketch16.addConstraint(Sketcher.Constraint("Vertical", 2))
sketch16.addConstraint(Sketcher.Constraint("Horizontal", 3))
sketch16.addConstraint(Sketcher.Constraint("Symmetric", 0, 2, 2, 2, -1, 1))
sketch16.addConstraint(Sketcher.Constraint("DistanceX", 1, 1, 1, 2, 100.0))
sketch16.addConstraint(Sketcher.Constraint("DistanceY", 0, 2, 0, 1, 29.0))
pad16 = doc.addObject("PartDesign::Pad", "Pad015")
body19.addObject(pad16)
pad16.Profile = sketch16
pad16.Length = 9
doc.recompute()

boolean14 = doc.addObject("PartDesign::Boolean", "Boolean013")
body19.addObject(boolean14)
boolean14.Type = "Cut"
boolean14.addObjects([body18])
body20 = doc.addObject("PartDesign::Body", "Body019")

# Sketch on XY plane
sketch17 = doc.addObject("Sketcher::SketchObject", "Sketch016")
body20.addObject(sketch17)
sketch17.AttachmentSupport = (doc.getObject("XY_Plane019"), [""])
sketch17.MapMode = "FlatFace"
sketch17.addGeometry(Part.Circle(App.Vector(41.91, 8.26, 0), App.Vector(0, 0, 1), 3), False)
sketch17.addConstraint(Sketcher.Constraint("Diameter", 0, 6.0))
sketch17.addConstraint(Sketcher.Constraint("DistanceX", -1, 1, 0, 3, 41.91))
sketch17.addConstraint(Sketcher.Constraint("DistanceY", -1, 1, 0, 3, 8.26))
pad17 = doc.addObject("PartDesign::Pad", "Pad016")
body20.addObject(pad17)
pad17.Profile = sketch17
pad17.Length = 8
body21 = doc.addObject("PartDesign::Body", "Body020")

# Sketch on XY plane
sketch18 = doc.addObject("Sketcher::SketchObject", "Sketch017")
body21.addObject(sketch18)
sketch18.AttachmentSupport = (doc.getObject("XY_Plane020"), [""])
sketch18.MapMode = "FlatFace"
sketch18.addGeometry(Part.Circle(App.Vector(-41.91, 8.255, 0), App.Vector(0, 0, 1), 3), False)
sketch18.addConstraint(Sketcher.Constraint("Diameter", 0, 6.0))
sketch18.addConstraint(Sketcher.Constraint("DistanceX", 0, 3, -1, 1, 41.91))
sketch18.addConstraint(Sketcher.Constraint("DistanceY", -1, 1, 0, 3, 8.255))
pad18 = doc.addObject("PartDesign::Pad", "Pad017")
body21.addObject(pad18)
pad18.Profile = sketch18
pad18.Length = 8
body22 = doc.addObject("PartDesign::Body", "Body021")

# Sketch on XY plane
sketch19 = doc.addObject("Sketcher::SketchObject", "Sketch018")
body22.addObject(sketch19)
sketch19.AttachmentSupport = (doc.getObject("XY_Plane021"), [""])
sketch19.MapMode = "FlatFace"
sketch19.addGeometry(Part.Circle(App.Vector(41.91, -8.26, 0), App.Vector(0, 0, 1), 3), False)
sketch19.addConstraint(Sketcher.Constraint("Diameter", 0, 6.0))
sketch19.addConstraint(Sketcher.Constraint("DistanceX", -1, 1, 0, 3, 41.91))
sketch19.addConstraint(Sketcher.Constraint("DistanceY", 0, 3, -1, 1, 8.26))
pad19 = doc.addObject("PartDesign::Pad", "Pad018")
body22.addObject(pad19)
pad19.Profile = sketch19
pad19.Length = 8
body23 = doc.addObject("PartDesign::Body", "Body022")
body23.AllowCompound = True

# Sketch on XY plane
sketch20 = doc.addObject("Sketcher::SketchObject", "Sketch019")
body23.addObject(sketch20)
sketch20.AttachmentSupport = (doc.getObject("XY_Plane022"), [""])
sketch20.MapMode = "FlatFace"
sketch20.addGeometry(Part.Circle(App.Vector(-41.91, -8.26, 0), App.Vector(0, 0, 1), 3), False)
sketch20.addConstraint(Sketcher.Constraint("Diameter", 0, 6.0))
sketch20.addConstraint(Sketcher.Constraint("DistanceX", 0, 3, -1, 1, 41.91))
sketch20.addConstraint(Sketcher.Constraint("DistanceY", 0, 3, -1, 1, 8.26))
pad20 = doc.addObject("PartDesign::Pad", "Pad019")
body23.addObject(pad20)
pad20.Profile = sketch20
pad20.Length = 8
doc.recompute()

boolean15 = doc.addObject("PartDesign::Boolean", "Boolean014")
body23.addObject(boolean15)
boolean15.Type = "Fuse"
boolean15.addObjects([body20])
doc.recompute()

boolean16 = doc.addObject("PartDesign::Boolean", "Boolean015")
body23.addObject(boolean16)
boolean16.Type = "Fuse"
boolean16.addObjects([body21])
doc.recompute()

boolean17 = doc.addObject("PartDesign::Boolean", "Boolean016")
body23.addObject(boolean17)
boolean17.Type = "Fuse"
boolean17.addObjects([body22])
body24 = doc.addObject("PartDesign::Body", "Body023")
body24.AllowCompound = True
doc.recompute()

body23.Placement = App.Placement(App.Vector(0, 0, 20), App.Rotation(App.Vector(0, 0, 1), 0))
boolean18 = doc.addObject("PartDesign::Boolean", "Boolean017")
body24.addObject(boolean18)
boolean18.Type = "Fuse"
boolean18.addObjects([body23])
doc.recompute()

boolean19 = doc.addObject("PartDesign::Boolean", "Boolean018")
body24.addObject(boolean19)
boolean19.Type = "Fuse"
boolean19.addObjects([body19])
doc.recompute()

boolean20 = doc.addObject("PartDesign::Boolean", "Boolean019")
body24.addObject(boolean20)
boolean20.Type = "Cut"
boolean20.addObjects([body17])
doc.recompute()

boolean21 = doc.addObject("PartDesign::Boolean", "Boolean020")
body24.addObject(boolean21)
boolean21.Type = "Cut"
boolean21.addObjects([body12])
doc.recompute()

boolean22 = doc.addObject("PartDesign::Boolean", "Boolean021")
body24.addObject(boolean22)
boolean22.Type = "Fuse"
boolean22.addObjects([body6])
doc.recompute()

boolean23 = doc.addObject("PartDesign::Boolean", "Boolean022")
body24.addObject(boolean23)
boolean23.Type = "Cut"
boolean23.addObjects([body2])
doc.recompute()

chamfer2 = doc.addObject("PartDesign::Chamfer", "Chamfer001")
body24.addObject(chamfer2)
chamfer2.Base = (boolean23, edges_at(boolean23, [
    (-47.5, -12, 23.25),
    (-47.5, 12, 23.25),
    (47.5, 12, 23.25),
    (47.5, -12, 23.25),
]))
chamfer2.Size = 2
doc.recompute()

chamfer3 = doc.addObject("PartDesign::Chamfer", "Chamfer002")
body24.addObject(chamfer3)
chamfer3.Base = (chamfer2, edges_at(chamfer2, [
    (-50, 14.5, 24.5),
    (-50, -14.5, 24.5),
    (50, -14.5, 24.5),
    (50, 14.5, 24.5),
]))
chamfer3.Size = 4

doc.recompute()
